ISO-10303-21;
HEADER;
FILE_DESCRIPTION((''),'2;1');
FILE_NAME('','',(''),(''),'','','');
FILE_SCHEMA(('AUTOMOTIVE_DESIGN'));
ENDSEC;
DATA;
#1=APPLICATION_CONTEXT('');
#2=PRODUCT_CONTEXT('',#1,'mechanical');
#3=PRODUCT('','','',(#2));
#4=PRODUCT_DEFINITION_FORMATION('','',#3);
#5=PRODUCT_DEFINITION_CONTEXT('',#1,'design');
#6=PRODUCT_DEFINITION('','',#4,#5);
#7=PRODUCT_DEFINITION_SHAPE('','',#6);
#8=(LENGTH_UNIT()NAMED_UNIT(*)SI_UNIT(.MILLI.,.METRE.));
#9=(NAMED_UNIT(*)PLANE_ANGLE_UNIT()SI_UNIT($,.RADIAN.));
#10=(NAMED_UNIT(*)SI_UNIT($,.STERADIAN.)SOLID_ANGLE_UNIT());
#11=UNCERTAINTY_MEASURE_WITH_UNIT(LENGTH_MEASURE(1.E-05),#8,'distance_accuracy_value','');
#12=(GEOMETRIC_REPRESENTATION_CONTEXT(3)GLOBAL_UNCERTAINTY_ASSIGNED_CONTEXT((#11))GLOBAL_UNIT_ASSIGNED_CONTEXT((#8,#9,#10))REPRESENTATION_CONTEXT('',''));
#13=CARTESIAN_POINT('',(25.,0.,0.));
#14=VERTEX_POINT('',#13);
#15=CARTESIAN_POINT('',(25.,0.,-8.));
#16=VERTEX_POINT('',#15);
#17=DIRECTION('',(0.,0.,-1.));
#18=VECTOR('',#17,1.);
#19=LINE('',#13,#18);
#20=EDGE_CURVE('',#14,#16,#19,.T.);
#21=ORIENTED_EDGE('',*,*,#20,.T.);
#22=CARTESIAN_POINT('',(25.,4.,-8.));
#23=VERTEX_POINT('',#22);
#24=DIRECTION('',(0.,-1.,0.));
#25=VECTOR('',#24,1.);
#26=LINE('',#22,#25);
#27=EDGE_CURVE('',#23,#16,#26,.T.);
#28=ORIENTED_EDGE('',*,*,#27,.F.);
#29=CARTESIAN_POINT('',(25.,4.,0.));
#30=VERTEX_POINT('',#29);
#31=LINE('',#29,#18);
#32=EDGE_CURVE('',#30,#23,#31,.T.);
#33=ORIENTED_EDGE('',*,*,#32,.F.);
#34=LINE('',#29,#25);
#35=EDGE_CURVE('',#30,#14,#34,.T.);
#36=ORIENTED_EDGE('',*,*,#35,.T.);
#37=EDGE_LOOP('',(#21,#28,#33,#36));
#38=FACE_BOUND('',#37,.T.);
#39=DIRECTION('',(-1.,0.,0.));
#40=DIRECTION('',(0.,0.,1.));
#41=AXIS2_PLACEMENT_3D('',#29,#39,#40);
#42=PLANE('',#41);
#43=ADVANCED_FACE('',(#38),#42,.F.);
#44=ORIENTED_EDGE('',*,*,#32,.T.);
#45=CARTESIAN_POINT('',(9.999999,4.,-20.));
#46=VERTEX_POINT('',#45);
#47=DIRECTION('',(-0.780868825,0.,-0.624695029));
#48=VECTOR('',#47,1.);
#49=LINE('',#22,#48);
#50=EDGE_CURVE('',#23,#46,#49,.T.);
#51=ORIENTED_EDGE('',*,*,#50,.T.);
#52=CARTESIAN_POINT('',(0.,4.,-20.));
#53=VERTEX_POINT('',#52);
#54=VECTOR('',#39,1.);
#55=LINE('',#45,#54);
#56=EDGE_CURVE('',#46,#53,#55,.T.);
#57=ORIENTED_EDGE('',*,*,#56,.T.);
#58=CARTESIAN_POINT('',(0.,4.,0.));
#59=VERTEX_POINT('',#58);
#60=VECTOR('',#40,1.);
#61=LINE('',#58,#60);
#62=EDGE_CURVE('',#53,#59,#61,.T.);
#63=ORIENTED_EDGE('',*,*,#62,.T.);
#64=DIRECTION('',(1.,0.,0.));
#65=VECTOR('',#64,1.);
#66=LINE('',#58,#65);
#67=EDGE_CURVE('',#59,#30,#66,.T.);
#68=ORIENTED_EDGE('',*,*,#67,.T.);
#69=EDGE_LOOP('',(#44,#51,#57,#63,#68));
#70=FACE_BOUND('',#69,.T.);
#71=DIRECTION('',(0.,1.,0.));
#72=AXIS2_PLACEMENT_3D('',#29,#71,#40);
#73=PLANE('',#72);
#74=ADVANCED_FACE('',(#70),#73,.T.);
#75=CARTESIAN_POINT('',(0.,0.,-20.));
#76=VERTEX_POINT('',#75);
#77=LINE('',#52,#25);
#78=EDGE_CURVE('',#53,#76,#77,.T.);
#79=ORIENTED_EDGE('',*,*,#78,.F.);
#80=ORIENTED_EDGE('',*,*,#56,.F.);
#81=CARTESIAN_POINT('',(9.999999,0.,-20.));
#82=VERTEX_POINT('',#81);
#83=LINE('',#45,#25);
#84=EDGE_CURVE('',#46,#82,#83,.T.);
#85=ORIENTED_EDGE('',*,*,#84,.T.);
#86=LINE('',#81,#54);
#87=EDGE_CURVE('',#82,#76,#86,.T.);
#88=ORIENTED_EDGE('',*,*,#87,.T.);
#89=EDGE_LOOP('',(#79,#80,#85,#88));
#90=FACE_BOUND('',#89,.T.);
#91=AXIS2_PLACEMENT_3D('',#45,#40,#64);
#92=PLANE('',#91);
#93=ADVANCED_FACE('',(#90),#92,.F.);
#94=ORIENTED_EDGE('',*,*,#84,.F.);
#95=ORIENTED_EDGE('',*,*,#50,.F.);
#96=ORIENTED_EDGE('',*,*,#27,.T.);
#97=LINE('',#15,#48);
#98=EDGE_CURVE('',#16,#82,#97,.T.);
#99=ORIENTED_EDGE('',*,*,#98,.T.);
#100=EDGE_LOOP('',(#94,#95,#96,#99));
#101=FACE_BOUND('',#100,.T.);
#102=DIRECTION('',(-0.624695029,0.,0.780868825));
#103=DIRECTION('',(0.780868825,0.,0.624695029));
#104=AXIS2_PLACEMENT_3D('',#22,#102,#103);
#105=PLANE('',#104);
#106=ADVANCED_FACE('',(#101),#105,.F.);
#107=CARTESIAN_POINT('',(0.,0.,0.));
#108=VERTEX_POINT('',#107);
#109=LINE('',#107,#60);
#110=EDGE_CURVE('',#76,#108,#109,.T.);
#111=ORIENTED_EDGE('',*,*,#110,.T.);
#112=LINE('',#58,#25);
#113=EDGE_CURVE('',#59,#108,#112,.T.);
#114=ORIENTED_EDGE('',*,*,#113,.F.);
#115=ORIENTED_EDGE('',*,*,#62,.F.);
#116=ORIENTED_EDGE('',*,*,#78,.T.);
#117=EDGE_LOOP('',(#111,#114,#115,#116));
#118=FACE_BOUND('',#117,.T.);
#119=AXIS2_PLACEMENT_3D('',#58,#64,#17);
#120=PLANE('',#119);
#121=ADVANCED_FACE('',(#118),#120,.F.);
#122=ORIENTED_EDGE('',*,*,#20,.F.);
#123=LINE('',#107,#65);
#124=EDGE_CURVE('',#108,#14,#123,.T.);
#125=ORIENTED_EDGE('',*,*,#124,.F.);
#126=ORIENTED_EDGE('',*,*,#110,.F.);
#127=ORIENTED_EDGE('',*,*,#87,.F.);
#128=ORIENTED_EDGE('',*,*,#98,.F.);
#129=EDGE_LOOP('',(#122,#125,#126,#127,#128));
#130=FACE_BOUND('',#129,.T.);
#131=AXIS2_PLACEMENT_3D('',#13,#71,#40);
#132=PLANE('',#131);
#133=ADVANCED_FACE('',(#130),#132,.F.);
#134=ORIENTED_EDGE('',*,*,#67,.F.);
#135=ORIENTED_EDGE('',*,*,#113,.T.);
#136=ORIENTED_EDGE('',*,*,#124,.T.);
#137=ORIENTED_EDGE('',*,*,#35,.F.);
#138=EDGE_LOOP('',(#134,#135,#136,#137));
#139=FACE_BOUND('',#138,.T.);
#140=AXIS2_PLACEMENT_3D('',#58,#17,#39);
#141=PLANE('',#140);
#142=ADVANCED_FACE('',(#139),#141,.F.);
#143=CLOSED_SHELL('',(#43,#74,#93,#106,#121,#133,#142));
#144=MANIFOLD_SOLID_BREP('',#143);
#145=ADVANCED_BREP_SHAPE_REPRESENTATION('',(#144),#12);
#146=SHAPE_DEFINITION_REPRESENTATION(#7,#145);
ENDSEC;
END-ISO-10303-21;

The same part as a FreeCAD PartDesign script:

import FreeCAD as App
import Part
import Sketcher
from FreeCAD import Vector

doc = App.newDocument("Part")
body = doc.addObject("PartDesign::Body", "Body")

sketch1 = body.newObject("Sketcher::SketchObject", "Sketch")
sketch1.AttachmentSupport = (doc.getObject("XZ_Plane"), [""])
sketch1.MapMode = "FlatFace"
sketch1.addGeometry(Part.LineSegment(Vector(0, -20, 0), Vector(0, 0, 0)), False)
sketch1.addGeometry(Part.LineSegment(Vector(0, 0, 0), Vector(25, 0, 0)), False)
sketch1.addGeometry(Part.LineSegment(Vector(25, 0, 0), Vector(25, -8, 0)), False)
sketch1.addGeometry(Part.LineSegment(Vector(25, -8, 0), Vector(10, -20, 0)), False)
sketch1.addGeometry(Part.LineSegment(Vector(10, -20, 0), Vector(0, -20, 0)), False)
sketch1.addConstraint(Sketcher.Constraint("Coincident", 0, 2, 1, 1))
sketch1.addConstraint(Sketcher.Constraint("Coincident", 1, 2, 2, 1))
sketch1.addConstraint(Sketcher.Constraint("Coincident", 2, 2, 3, 1))
sketch1.addConstraint(Sketcher.Constraint("Coincident", 3, 2, 4, 1))
sketch1.addConstraint(Sketcher.Constraint("Coincident", 4, 2, 0, 1))
sketch1.addConstraint(Sketcher.Constraint("Vertical", 0))
sketch1.addConstraint(Sketcher.Constraint("Horizontal", 1))
sketch1.addConstraint(Sketcher.Constraint("Vertical", 2))
sketch1.addConstraint(Sketcher.Constraint("Horizontal", 4))
sketch1.addConstraint(Sketcher.Constraint("Coincident", 0, 2, -1, 1))
sketch1.addConstraint(Sketcher.Constraint("DistanceX", 1, 1, 1, 2, 25.0))
sketch1.addConstraint(Sketcher.Constraint("DistanceX", 4, 2, 4, 1, 9.999999))
sketch1.addConstraint(Sketcher.Constraint("DistanceY", 0, 1, 0, 2, 20.0))
sketch1.addConstraint(Sketcher.Constraint("DistanceY", 2, 2, 2, 1, 8.0))
pad1 = body.newObject("PartDesign::Pad", "Pad")
pad1.Profile = sketch1
pad1.Length = 4
pad1.Reversed = True

doc.recompute()
